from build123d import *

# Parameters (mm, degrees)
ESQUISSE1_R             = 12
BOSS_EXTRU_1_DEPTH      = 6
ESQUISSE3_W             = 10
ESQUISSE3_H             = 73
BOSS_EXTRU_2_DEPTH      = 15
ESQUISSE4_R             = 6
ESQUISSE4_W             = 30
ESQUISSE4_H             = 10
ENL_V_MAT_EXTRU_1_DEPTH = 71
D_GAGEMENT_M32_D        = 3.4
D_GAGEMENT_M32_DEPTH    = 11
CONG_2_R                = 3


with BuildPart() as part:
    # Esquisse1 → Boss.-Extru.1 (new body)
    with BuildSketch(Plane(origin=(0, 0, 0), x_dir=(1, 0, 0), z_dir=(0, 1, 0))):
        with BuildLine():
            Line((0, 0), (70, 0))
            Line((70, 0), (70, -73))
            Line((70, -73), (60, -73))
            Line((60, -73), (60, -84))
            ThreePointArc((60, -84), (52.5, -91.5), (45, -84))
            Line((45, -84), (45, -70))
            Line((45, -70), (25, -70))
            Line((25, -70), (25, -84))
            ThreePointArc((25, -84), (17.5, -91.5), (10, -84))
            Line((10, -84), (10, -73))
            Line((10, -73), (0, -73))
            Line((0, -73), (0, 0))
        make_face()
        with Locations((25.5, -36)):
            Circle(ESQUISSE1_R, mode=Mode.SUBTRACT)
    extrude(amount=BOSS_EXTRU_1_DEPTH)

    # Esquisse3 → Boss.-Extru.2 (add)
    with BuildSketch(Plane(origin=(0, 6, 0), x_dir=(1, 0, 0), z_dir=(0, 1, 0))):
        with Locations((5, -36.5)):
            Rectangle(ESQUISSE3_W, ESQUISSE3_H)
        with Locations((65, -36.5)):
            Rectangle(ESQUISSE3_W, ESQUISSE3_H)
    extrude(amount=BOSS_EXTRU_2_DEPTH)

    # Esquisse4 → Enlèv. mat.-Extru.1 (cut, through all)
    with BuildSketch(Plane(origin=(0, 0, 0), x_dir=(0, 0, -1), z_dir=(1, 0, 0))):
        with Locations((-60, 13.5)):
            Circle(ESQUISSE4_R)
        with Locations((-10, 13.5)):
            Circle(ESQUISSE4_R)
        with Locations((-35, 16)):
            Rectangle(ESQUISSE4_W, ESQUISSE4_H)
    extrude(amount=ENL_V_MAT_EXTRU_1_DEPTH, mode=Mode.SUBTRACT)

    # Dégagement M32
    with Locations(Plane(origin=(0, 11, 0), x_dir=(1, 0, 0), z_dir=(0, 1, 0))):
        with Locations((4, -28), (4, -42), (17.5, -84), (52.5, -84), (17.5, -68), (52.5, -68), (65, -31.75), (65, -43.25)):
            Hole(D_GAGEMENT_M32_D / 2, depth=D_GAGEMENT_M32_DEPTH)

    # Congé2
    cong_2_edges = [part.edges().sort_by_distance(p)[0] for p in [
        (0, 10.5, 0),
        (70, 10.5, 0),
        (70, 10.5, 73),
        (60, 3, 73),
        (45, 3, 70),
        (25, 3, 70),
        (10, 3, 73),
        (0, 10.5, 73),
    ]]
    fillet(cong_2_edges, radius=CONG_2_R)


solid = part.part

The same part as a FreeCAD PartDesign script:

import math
import FreeCAD as App
import Part
import Sketcher

V = App.Vector
Q = App.Units.Quantity


def edges_at(feature, points):
    """Names of the edges that pass closest to the given points."""
    edges = feature.Shape.Edges
    near = lambda p: min(range(len(edges)), key=lambda i: edges[i].distToShape(Part.Vertex(*p))[0])
    return sorted({f"Edge{near(p) + 1}" for p in points})


def add_polygon(sketch, points):
    """Adds a closed chain of lines whose ends are joined by coincident constraints."""
    first, n = sketch.GeometryCount, len(points)
    for a, b in zip(points, points[1:] + points[:1]):
        sketch.addGeometry(Part.LineSegment(App.Vector(*a, 0), App.Vector(*b, 0)), False)
    for i in range(n):
        sketch.addConstraint(Sketcher.Constraint("Coincident", first + i, 2, first + (i + 1) % n, 1))

doc = App.newDocument("Part")
body = doc.addObject("PartDesign::Body", "Body")

# Sketch on XZ plane
sketch1 = body.newObject("Sketcher::SketchObject", "Sketch")
sketch1.AttachmentSupport = (doc.getObject("XZ_Plane"), [""])
sketch1.MapMode = "FlatFace"
sketch1.addGeometry(Part.LineSegment(V(70, 0, 0), V(0, 0, 0)), False)
sketch1.addGeometry(Part.LineSegment(V(0, 0, 0), V(0, 73, 0)), False)
sketch1.addGeometry(Part.LineSegment(V(0, 73, 0), V(10, 73, 0)), False)
sketch1.addGeometry(Part.LineSegment(V(10, 73, 0), V(10, 84, 0)), False)
sketch1.addGeometry(Part.ArcOfCircle(Part.Circle(V(17.5, 84, 0), V(0, 0, 1), 7.5), math.radians(0), math.radians(180)), False)
sketch1.addGeometry(Part.LineSegment(V(25, 84, 0), V(25, 70, 0)), False)
sketch1.addGeometry(Part.LineSegment(V(25, 70, 0), V(45, 70, 0)), False)
sketch1.addGeometry(Part.LineSegment(V(45, 70, 0), V(45, 84, 0)), False)
sketch1.addGeometry(Part.ArcOfCircle(Part.Circle(V(52.5, 84, 0), V(0, 0, 1), 7.5), math.radians(0), math.radians(180)), False)
sketch1.addGeometry(Part.LineSegment(V(60, 84, 0), V(60, 73, 0)), False)
sketch1.addGeometry(Part.LineSegment(V(60, 73, 0), V(70, 73, 0)), False)
sketch1.addGeometry(Part.LineSegment(V(70, 73, 0), V(70, 0, 0)), False)
sketch1.addGeometry(Part.Circle(V(25.5, 36, 0), V(0, 0, 1), 12), False)
sketch1.addConstraint(Sketcher.Constraint("Coincident", 0, 2, 1, 1))
sketch1.addConstraint(Sketcher.Constraint("Coincident", 1, 2, 2, 1))
sketch1.addConstraint(Sketcher.Constraint("Coincident", 2, 2, 3, 1))
sketch1.addConstraint(Sketcher.Constraint("Tangent", 3, 2, 4, 2))
sketch1.addConstraint(Sketcher.Constraint("Tangent", 4, 1, 5, 1))
sketch1.addConstraint(Sketcher.Constraint("Coincident", 5, 2, 6, 1))
sketch1.addConstraint(Sketcher.Constraint("Coincident", 6, 2, 7, 1))
sketch1.addConstraint(Sketcher.Constraint("Tangent", 7, 2, 8, 2))
sketch1.addConstraint(Sketcher.Constraint("Tangent", 8, 1, 9, 1))
sketch1.addConstraint(Sketcher.Constraint("Coincident", 9, 2, 10, 1))
sketch1.addConstraint(Sketcher.Constraint("Coincident", 10, 2, 11, 1))
sketch1.addConstraint(Sketcher.Constraint("Coincident", 11, 2, 0, 1))
sketch1.addConstraint(Sketcher.Constraint("Horizontal", 0))
sketch1.addConstraint(Sketcher.Constraint("Vertical", 1))
sketch1.addConstraint(Sketcher.Constraint("Horizontal", 2))
sketch1.addConstraint(Sketcher.Constraint("Vertical", 3))
sketch1.addConstraint(Sketcher.Constraint("Vertical", 5))
sketch1.addConstraint(Sketcher.Constraint("Horizontal", 6))
sketch1.addConstraint(Sketcher.Constraint("Vertical", 7))
sketch1.addConstraint(Sketcher.Constraint("Vertical", 9))
sketch1.addConstraint(Sketcher.Constraint("Horizontal", 10))
sketch1.addConstraint(Sketcher.Constraint("Vertical", 11))
sketch1.addConstraint(Sketcher.Constraint("Coincident", 0, 2, -1, 1))
sketch1.addConstraint(Sketcher.Constraint("Equal", 4, 8))
sketch1.addConstraint(Sketcher.Constraint("Horizontal", 4, 3, 8, 3))
sketch1.addConstraint(Sketcher.Constraint("Horizontal", 2, 2, 9, 2))
sketch1.addConstraint(Sketcher.Constraint("Equal", 2, 10))
sketch1.addConstraint(Sketcher.Constraint("Diameter", 12, Q("24 mm")))
sketch1.addConstraint(Sketcher.Constraint("Radius", 4, Q("7.5 mm")))
sketch1.addConstraint(Sketcher.Constraint("DistanceX", 0, 2, 0, 1, Q("70 mm")))
sketch1.addConstraint(Sketcher.Constraint("DistanceX", 2, 1, 2, 2, Q("10 mm")))
sketch1.addConstraint(Sketcher.Constraint("DistanceY", 1, 1, 1, 2, Q("73 mm")))
sketch1.addConstraint(Sketcher.Constraint("DistanceY", 3, 1, 3, 2, Q("11 mm")))
sketch1.addConstraint(Sketcher.Constraint("DistanceY", 5, 2, 5, 1, Q("14 mm")))
sketch1.addConstraint(Sketcher.Constraint("DistanceY", -1, 1, 12, 3, Q("36 mm")))
sketch1.addConstraint(Sketcher.Constraint("DistanceX", 4, 3, 12, 3, Q("8 mm")))
pad1 = body.newObject("PartDesign::Pad", "Pad")
pad1.Profile = sketch1
pad1.Length = 6
pad1.Reversed = True

# Sketch on XZ plane
sketch2 = body.newObject("Sketcher::SketchObject", "Sketch001")
sketch2.AttachmentSupport = (doc.getObject("XZ_Plane"), [""])
sketch2.MapMode = "FlatFace"
sketch2.AttachmentOffset = App.Placement(V(0, 0, -6), App.Rotation())
add_polygon(sketch2, [(0, 0), (0, 73), (10, 73), (10, 0)])  # lines 0-3
add_polygon(sketch2, [(60, 0), (60, 73), (70, 73), (70, 0)])  # lines 4-7
sketch2.addConstraint(Sketcher.Constraint("Vertical", 0))
sketch2.addConstraint(Sketcher.Constraint("Horizontal", 1))
sketch2.addConstraint(Sketcher.Constraint("Vertical", 2))
sketch2.addConstraint(Sketcher.Constraint("Horizontal", 3))
sketch2.addConstraint(Sketcher.Constraint("Vertical", 4))
sketch2.addConstraint(Sketcher.Constraint("Horizontal", 5))
sketch2.addConstraint(Sketcher.Constraint("Vertical", 6))
sketch2.addConstraint(Sketcher.Constraint("Horizontal", 7))
sketch2.addConstraint(Sketcher.Constraint("Coincident", 3, 2, -1, 1))
sketch2.addConstraint(Sketcher.Constraint("PointOnObject", 6, 2, -1))
sketch2.addConstraint(Sketcher.Constraint("Horizontal", 1, 2, 4, 2))
sketch2.addConstraint(Sketcher.Constraint("Equal", 3, 5))
sketch2.addConstraint(Sketcher.Constraint("DistanceX", 1, 1, 1, 2, Q("10 mm")))
sketch2.addConstraint(Sketcher.Constraint("DistanceY", 0, 1, 0, 2, Q("73 mm")))
sketch2.addConstraint(Sketcher.Constraint("DistanceX", -1, 1, 4, 2, Q("60 mm")))
pad2 = body.newObject("PartDesign::Pad", "Pad001")
pad2.Profile = sketch2
pad2.Length = 15
pad2.Reversed = True

# Sketch on YZ plane
sketch3 = body.newObject("Sketcher::SketchObject", "Sketch002")
sketch3.AttachmentSupport = (doc.getObject("YZ_Plane"), [""])
sketch3.MapMode = "FlatFace"
sketch3.addGeometry(Part.Circle(V(13.5, 60, 0), V(0, 0, 1), 6), False)  # 0
sketch3.addGeometry(Part.Circle(V(13.5, 10, 0), V(0, 0, 1), 6), False)  # 1
add_polygon(sketch3, [(21, 50), (11, 50), (11, 20), (21, 20)])  # lines 2-5
sketch3.addConstraint(Sketcher.Constraint("Horizontal", 2))
sketch3.addConstraint(Sketcher.Constraint("Vertical", 3))
sketch3.addConstraint(Sketcher.Constraint("Horizontal", 4))
sketch3.addConstraint(Sketcher.Constraint("Vertical", 5))
sketch3.addConstraint(Sketcher.Constraint("Equal", 0, 1))
sketch3.addConstraint(Sketcher.Constraint("Vertical", 0, 3, 1, 3))
sketch3.addConstraint(Sketcher.Constraint("Diameter", 0, Q("12 mm")))
sketch3.addConstraint(Sketcher.Constraint("DistanceX", 2, 2, 2, 1, Q("10 mm")))
sketch3.addConstraint(Sketcher.Constraint("DistanceY", 3, 2, 3, 1, Q("30 mm")))
sketch3.addConstraint(Sketcher.Constraint("DistanceY", -1, 1, 0, 3, Q("60 mm")))
sketch3.addConstraint(Sketcher.Constraint("DistanceY", -1, 1, 1, 3, Q("10 mm")))
sketch3.addConstraint(Sketcher.Constraint("DistanceX", -1, 1, 2, 2, Q("11 mm")))
sketch3.addConstraint(Sketcher.Constraint("DistanceY", -1, 1, 2, 2, Q("50 mm")))
sketch3.addConstraint(Sketcher.Constraint("DistanceX", -1, 1, 0, 3, Q("13.5 mm")))
pocket1 = body.newObject("PartDesign::Pocket", "Pocket")
pocket1.Profile = sketch3
pocket1.Type = "ThroughAll"
pocket1.Reversed = True

# Sketch on XZ plane
sketch4 = body.newObject("Sketcher::SketchObject", "Sketch003")
sketch4.AttachmentSupport = (doc.getObject("XZ_Plane"), [""])
sketch4.MapMode = "FlatFace"
sketch4.AttachmentOffset = App.Placement(V(0, 0, -11), App.Rotation())
sketch4.addGeometry(Part.Circle(V(4, 28, 0), V(0, 0, 1), 1.7), False)
sketch4.addGeometry(Part.Circle(V(4, 42, 0), V(0, 0, 1), 1.7), False)
sketch4.addGeometry(Part.Circle(V(17.5, 84, 0), V(0, 0, 1), 1.7), False)
sketch4.addGeometry(Part.Circle(V(52.5, 84, 0), V(0, 0, 1), 1.7), False)
sketch4.addGeometry(Part.Circle(V(17.5, 68, 0), V(0, 0, 1), 1.7), False)
sketch4.addGeometry(Part.Circle(V(52.5, 68, 0), V(0, 0, 1), 1.7), False)
sketch4.addGeometry(Part.Circle(V(65, 31.75, 0), V(0, 0, 1), 1.7), False)
sketch4.addGeometry(Part.Circle(V(65, 43.25, 0), V(0, 0, 1), 1.7), False)
sketch4.addConstraint(Sketcher.Constraint("Equal", 0, 1))
sketch4.addConstraint(Sketcher.Constraint("Equal", 1, 2))
sketch4.addConstraint(Sketcher.Constraint("Equal", 2, 3))
sketch4.addConstraint(Sketcher.Constraint("Equal", 3, 4))
sketch4.addConstraint(Sketcher.Constraint("Equal", 4, 5))
sketch4.addConstraint(Sketcher.Constraint("Equal", 5, 6))
sketch4.addConstraint(Sketcher.Constraint("Equal", 6, 7))
sketch4.addConstraint(Sketcher.Constraint("Horizontal", 2, 3, 3, 3))
sketch4.addConstraint(Sketcher.Constraint("Horizontal", 4, 3, 5, 3))
sketch4.addConstraint(Sketcher.Constraint("Vertical", 0, 3, 1, 3))
sketch4.addConstraint(Sketcher.Constraint("Vertical", 2, 3, 4, 3))
sketch4.addConstraint(Sketcher.Constraint("Vertical", 3, 3, 5, 3))
sketch4.addConstraint(Sketcher.Constraint("Vertical", 6, 3, 7, 3))
sketch4.addConstraint(Sketcher.Constraint("Diameter", 0, Q("3.4 mm")))
sketch4.addConstraint(Sketcher.Constraint("DistanceX", -1, 1, 0, 3, Q("4 mm")))
sketch4.addConstraint(Sketcher.Constraint("DistanceY", -1, 1, 0, 3, Q("28 mm")))
sketch4.addConstraint(Sketcher.Constraint("DistanceY", -1, 1, 1, 3, Q("42 mm")))
sketch4.addConstraint(Sketcher.Constraint("DistanceY", -1, 1, 2, 3, Q("84 mm")))
sketch4.addConstraint(Sketcher.Constraint("DistanceY", -1, 1, 4, 3, Q("68 mm")))
sketch4.addConstraint(Sketcher.Constraint("DistanceX", -1, 1, 6, 3, Q("65 mm")))
sketch4.addConstraint(Sketcher.Constraint("DistanceX", 2, 3, 3, 3, Q("35 mm")))
sketch4.addConstraint(Sketcher.Constraint("DistanceX", -1, 1, 2, 3, Q("17.5 mm")))
sketch4.addConstraint(Sketcher.Constraint("DistanceY", 6, 3, 7, 3, Q("11.5 mm")))
sketch4.addConstraint(Sketcher.Constraint("DistanceY", -1, 1, 6, 3, Q("31.75 mm")))
doc.recompute()
hole = body.newObject("PartDesign::Hole", "Hole")
hole.Profile = sketch4
hole.ThreadType = "None"
hole.Diameter = 3.4
hole.DepthType = "Dimension"
hole.Depth = 11
hole.DrillPoint = "Flat"
hole.Reversed = True
doc.recompute()

fillet = body.newObject("PartDesign::Fillet", "Fillet")
fillet.Base = (hole, edges_at(hole, [
    (0, 10.5, 0),
    (70, 10.5, 0),
    (70, 10.5, 73),
    (60, 3, 73),
    (45, 3, 70),
    (25, 3, 70),
    (10, 3, 73),
    (0, 10.5, 73),
]))
fillet.Radius = 3

doc.recompute()
